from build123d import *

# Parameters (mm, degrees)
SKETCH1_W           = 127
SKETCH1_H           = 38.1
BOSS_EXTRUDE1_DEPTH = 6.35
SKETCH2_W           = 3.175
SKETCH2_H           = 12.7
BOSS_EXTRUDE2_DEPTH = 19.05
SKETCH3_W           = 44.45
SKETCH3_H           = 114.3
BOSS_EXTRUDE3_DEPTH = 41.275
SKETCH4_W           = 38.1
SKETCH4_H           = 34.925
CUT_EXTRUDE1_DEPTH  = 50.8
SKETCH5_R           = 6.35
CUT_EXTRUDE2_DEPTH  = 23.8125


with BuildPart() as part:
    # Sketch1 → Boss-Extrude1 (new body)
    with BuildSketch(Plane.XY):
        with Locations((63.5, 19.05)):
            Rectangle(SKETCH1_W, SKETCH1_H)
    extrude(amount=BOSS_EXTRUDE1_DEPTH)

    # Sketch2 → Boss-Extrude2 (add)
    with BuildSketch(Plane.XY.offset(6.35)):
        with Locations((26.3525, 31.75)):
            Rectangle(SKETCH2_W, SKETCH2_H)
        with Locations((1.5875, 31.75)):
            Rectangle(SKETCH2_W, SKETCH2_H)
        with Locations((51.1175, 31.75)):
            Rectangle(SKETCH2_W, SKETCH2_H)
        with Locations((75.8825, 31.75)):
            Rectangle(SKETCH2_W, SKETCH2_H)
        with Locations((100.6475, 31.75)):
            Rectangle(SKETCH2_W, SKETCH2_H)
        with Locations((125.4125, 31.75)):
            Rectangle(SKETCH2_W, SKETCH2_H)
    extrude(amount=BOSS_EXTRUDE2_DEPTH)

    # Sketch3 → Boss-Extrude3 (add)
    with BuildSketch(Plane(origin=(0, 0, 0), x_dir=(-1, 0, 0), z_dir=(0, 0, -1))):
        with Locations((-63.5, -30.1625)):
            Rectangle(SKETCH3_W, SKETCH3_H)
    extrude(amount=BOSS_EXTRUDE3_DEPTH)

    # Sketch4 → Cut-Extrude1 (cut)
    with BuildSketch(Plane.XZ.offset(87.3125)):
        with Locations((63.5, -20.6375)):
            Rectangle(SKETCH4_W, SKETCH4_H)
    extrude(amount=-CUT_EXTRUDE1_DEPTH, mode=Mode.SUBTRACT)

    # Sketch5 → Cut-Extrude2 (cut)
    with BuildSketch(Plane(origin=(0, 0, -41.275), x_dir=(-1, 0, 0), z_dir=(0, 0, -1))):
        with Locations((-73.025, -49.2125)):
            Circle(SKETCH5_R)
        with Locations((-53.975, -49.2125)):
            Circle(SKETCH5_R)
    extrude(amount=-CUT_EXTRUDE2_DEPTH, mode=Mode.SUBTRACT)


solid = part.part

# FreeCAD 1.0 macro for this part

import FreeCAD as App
import Part
import Sketcher
Q = App.Units.Quantity


def add_polygon(sketch, points):
    """Adds a closed chain of lines whose ends are joined by coincident constraints."""
    first, n = sketch.GeometryCount, len(points)
    for a, b in zip(points, points[1:] + points[:1]):
        sketch.addGeometry(Part.LineSegment(App.Vector(*a, 0), App.Vector(*b, 0)), False)
    for i in range(n):
        sketch.addConstraint(Sketcher.Constraint("Coincident", first + i, 2, first + (i + 1) % n, 1))

doc = App.newDocument("Part")
body = doc.addObject("PartDesign::Body", "Body")

sketch1 = body.newObject("Sketcher::SketchObject", "Sketch")
sketch1.AttachmentSupport = (doc.getObject("XY_Plane"), [""])
sketch1.MapMode = "FlatFace"
add_polygon(sketch1, [(0, 38), (0, 0), (127, 0), (127, 38)])
sketch1.addConstraint(Sketcher.Constraint("Vertical", 0))
sketch1.addConstraint(Sketcher.Constraint("Horizontal", 1))
sketch1.addConstraint(Sketcher.Constraint("Vertical", 2))
sketch1.addConstraint(Sketcher.Constraint("Horizontal", 3))
sketch1.addConstraint(Sketcher.Constraint("Coincident", 0, 2, -1, 1))
sketch1.addConstraint(Sketcher.Constraint("DistanceX", 1, 1, 1, 2, Q("5 in")))
sketch1.addConstraint(Sketcher.Constraint("DistanceY", 0, 2, 0, 1, Q("1.5 in")))
pad1 = body.newObject("PartDesign::Pad", "Pad")
pad1.Profile = sketch1
pad1.Length = Q("0.25 in")

sketch2 = body.newObject("Sketcher::SketchObject", "Sketch001")
sketch2.AttachmentSupport = (doc.getObject("XY_Plane"), [""])
sketch2.MapMode = "FlatFace"
sketch2.AttachmentOffset = App.Placement(App.Vector(0, 0, 0.25 * 25.4), App.Rotation())
add_polygon(sketch2, [(24.8, 38.1), (24.8, 25.4), (27.9, 25.4), (27.9, 38.1)])
add_polygon(sketch2, [(0, 38.1), (0, 25.4), (3.2, 25.4), (3.2, 38.1)])
add_polygon(sketch2, [(49.5, 38.1), (49.5, 25.4), (52.7, 25.4), (52.7, 38.1)])
add_polygon(sketch2, [(74.3, 38.1), (74.3, 25.4), (77.5, 25.4), (77.5, 38.1)])
add_polygon(sketch2, [(99.1, 38.1), (99.1, 25.4), (102.2, 25.4), (102.2, 38.1)])
add_polygon(sketch2, [(123.8, 38.1), (123.8, 25.4), (127, 25.4), (127, 38.1)])
sketch2.addConstraint(Sketcher.Constraint("Vertical", 0))
sketch2.addConstraint(Sketcher.Constraint("Horizontal", 1))
sketch2.addConstraint(Sketcher.Constraint("Vertical", 2))
sketch2.addConstraint(Sketcher.Constraint("Horizontal", 3))
sketch2.addConstraint(Sketcher.Constraint("Vertical", 4))
sketch2.addConstraint(Sketcher.Constraint("Horizontal", 5))
sketch2.addConstraint(Sketcher.Constraint("Vertical", 6))
sketch2.addConstraint(Sketcher.Constraint("Horizontal", 7))
sketch2.addConstraint(Sketcher.Constraint("Vertical", 8))
sketch2.addConstraint(Sketcher.Constraint("Horizontal", 9))
sketch2.addConstraint(Sketcher.Constraint("Vertical", 10))
sketch2.addConstraint(Sketcher.Constraint("Horizontal", 11))
sketch2.addConstraint(Sketcher.Constraint("Vertical", 12))
sketch2.addConstraint(Sketcher.Constraint("Horizontal", 13))
sketch2.addConstraint(Sketcher.Constraint("Vertical", 14))
sketch2.addConstraint(Sketcher.Constraint("Horizontal", 15))
sketch2.addConstraint(Sketcher.Constraint("Vertical", 16))
sketch2.addConstraint(Sketcher.Constraint("Horizontal", 17))
sketch2.addConstraint(Sketcher.Constraint("Vertical", 18))
sketch2.addConstraint(Sketcher.Constraint("Horizontal", 19))
sketch2.addConstraint(Sketcher.Constraint("Vertical", 20))
sketch2.addConstraint(Sketcher.Constraint("Horizontal", 21))
sketch2.addConstraint(Sketcher.Constraint("Vertical", 22))
sketch2.addConstraint(Sketcher.Constraint("Horizontal", 23))
sketch2.addConstraint(Sketcher.Constraint("PointOnObject", 4, 2, -2))
sketch2.addConstraint(Sketcher.Constraint("Horizontal", 1, 2, 4, 2))
sketch2.addConstraint(Sketcher.Constraint("Horizontal", 3, 2, 6, 2))
sketch2.addConstraint(Sketcher.Constraint("Horizontal", 5, 2, 8, 2))
sketch2.addConstraint(Sketcher.Constraint("Horizontal", 7, 2, 10, 2))
sketch2.addConstraint(Sketcher.Constraint("Horizontal", 9, 2, 12, 2))
sketch2.addConstraint(Sketcher.Constraint("Horizontal", 11, 2, 14, 2))
sketch2.addConstraint(Sketcher.Constraint("Horizontal", 13, 2, 16, 2))
sketch2.addConstraint(Sketcher.Constraint("Horizontal", 15, 2, 18, 2))
sketch2.addConstraint(Sketcher.Constraint("Horizontal", 17, 2, 20, 2))
sketch2.addConstraint(Sketcher.Constraint("Horizontal", 19, 2, 22, 2))
sketch2.addConstraint(Sketcher.Constraint("Equal", 3, 5))
sketch2.addConstraint(Sketcher.Constraint("Equal", 7, 9))
sketch2.addConstraint(Sketcher.Constraint("Equal", 11, 13))
sketch2.addConstraint(Sketcher.Constraint("Equal", 15, 17))
sketch2.addConstraint(Sketcher.Constraint("Equal", 19, 21))
sketch2.addConstraint(Sketcher.Constraint("DistanceY", 0, 2, 0, 1, Q("0.5 in")))
sketch2.addConstraint(Sketcher.Constraint("DistanceY", -1, 1, 0, 2, Q("1 in")))
sketch2.addConstraint(Sketcher.Constraint("DistanceX", -1, 1, 21, 2, Q("5 in")))
sketch2.addConstraint(Sketcher.Constraint("DistanceX", -1, 1, 1, 2, Q("1.1 in")))
sketch2.addConstraint(Sketcher.Constraint("DistanceX", -1, 1, 16, 2, Q("3.9 in")))
sketch2.addConstraint(Sketcher.Constraint("DistanceX", 0, 2, 9, 2, Q("1.1 in")))
sketch2.addConstraint(Sketcher.Constraint("DistanceX", 8, 2, 13, 2, Q("1.1 in")))
sketch2.addConstraint(Sketcher.Constraint("DistanceX", 12, 2, 17, 2, Q("1.1 in")))
pad2 = body.newObject("PartDesign::Pad", "Pad001")
pad2.Profile = sketch2
pad2.Length = Q("0.75 in")

sketch3 = body.newObject("Sketcher::SketchObject", "Sketch002")
sketch3.AttachmentSupport = (doc.getObject("XY_Plane"), [""])
sketch3.MapMode = "FlatFace"
add_polygon(sketch3, [(86, 27), (86, -87), (41, -87), (41, 27)])
sketch3.addConstraint(Sketcher.Constraint("Vertical", 0))
sketch3.addConstraint(Sketcher.Constraint("Horizontal", 1))
sketch3.addConstraint(Sketcher.Constraint("Vertical", 2))
sketch3.addConstraint(Sketcher.Constraint("Horizontal", 3))
sketch3.addConstraint(Sketcher.Constraint("DistanceY", 0, 2, 0, 1, Q("4.5 in")))
sketch3.addConstraint(Sketcher.Constraint("DistanceX", 1, 2, 1, 1, Q("1.75 in")))
sketch3.addConstraint(Sketcher.Constraint("DistanceX", -1, 1, 0, 2, Q("3.375 in")))
sketch3.addConstraint(Sketcher.Constraint("DistanceY", 0, 2, -1, 1, Q("3.4375 in")))
pad3 = body.newObject("PartDesign::Pad", "Pad002")
pad3.Profile = sketch3
pad3.Length = Q("1.625 in")
pad3.Reversed = True

sketch4 = body.newObject("Sketcher::SketchObject", "Sketch003")
sketch4.AttachmentSupport = (doc.getObject("XZ_Plane"), [""])
sketch4.MapMode = "FlatFace"
sketch4.AttachmentOffset = App.Placement(App.Vector(0, 0, 3.4375 * 25.4), App.Rotation())
add_polygon(sketch4, [(44, -3), (44, -38), (83, -38), (83, -3)])
sketch4.addConstraint(Sketcher.Constraint("Vertical", 0))
sketch4.addConstraint(Sketcher.Constraint("Horizontal", 1))
sketch4.addConstraint(Sketcher.Constraint("Vertical", 2))
sketch4.addConstraint(Sketcher.Constraint("Horizontal", 3))
sketch4.addConstraint(Sketcher.Constraint("DistanceX", 1, 1, 1, 2, Q("1.5 in")))
sketch4.addConstraint(Sketcher.Constraint("DistanceY", 0, 2, -1, 1, Q("1.5 in")))
sketch4.addConstraint(Sketcher.Constraint("DistanceY", 0, 2, 0, 1, Q("1.375 in")))
sketch4.addConstraint(Sketcher.Constraint("DistanceX", -1, 1, 0, 2, Q("1.75 in")))
pocket1 = body.newObject("PartDesign::Pocket", "Pocket")
pocket1.Profile = sketch4
pocket1.Length = Q("2 in")

sketch5 = body.newObject("Sketcher::SketchObject", "Sketch004")
sketch5.AttachmentSupport = (doc.getObject("XY_Plane"), [""])
sketch5.MapMode = "FlatFace"
sketch5.AttachmentOffset = App.Placement(App.Vector(0, 0, -1.625 * 25.4), App.Rotation())
sketch5.addGeometry(Part.Circle(App.Vector(73, -49, 0), App.Vector(0, 0, 1), 6), False)
sketch5.addGeometry(Part.Circle(App.Vector(54, -49, 0), App.Vector(0, 0, 1), 6), False)
sketch5.addConstraint(Sketcher.Constraint("Equal", 0, 1))
sketch5.addConstraint(Sketcher.Constraint("Horizontal", 0, 3, 1, 3))
sketch5.addConstraint(Sketcher.Constraint("Diameter", 0, Q("0.5 in")))
sketch5.addConstraint(Sketcher.Constraint("DistanceX", 1, 3, 0, 3, Q("0.75 in")))
sketch5.addConstraint(Sketcher.Constraint("DistanceX", -1, 1, 0, 3, Q("2.875 in")))
sketch5.addConstraint(Sketcher.Constraint("DistanceY", 0, 3, -1, 1, Q("1.9375 in")))
pocket2 = body.newObject("PartDesign::Pocket", "Pocket001")
pocket2.Profile = sketch5
pocket2.Length = Q("0.9375 in")
pocket2.Reversed = True

doc.recompute()
